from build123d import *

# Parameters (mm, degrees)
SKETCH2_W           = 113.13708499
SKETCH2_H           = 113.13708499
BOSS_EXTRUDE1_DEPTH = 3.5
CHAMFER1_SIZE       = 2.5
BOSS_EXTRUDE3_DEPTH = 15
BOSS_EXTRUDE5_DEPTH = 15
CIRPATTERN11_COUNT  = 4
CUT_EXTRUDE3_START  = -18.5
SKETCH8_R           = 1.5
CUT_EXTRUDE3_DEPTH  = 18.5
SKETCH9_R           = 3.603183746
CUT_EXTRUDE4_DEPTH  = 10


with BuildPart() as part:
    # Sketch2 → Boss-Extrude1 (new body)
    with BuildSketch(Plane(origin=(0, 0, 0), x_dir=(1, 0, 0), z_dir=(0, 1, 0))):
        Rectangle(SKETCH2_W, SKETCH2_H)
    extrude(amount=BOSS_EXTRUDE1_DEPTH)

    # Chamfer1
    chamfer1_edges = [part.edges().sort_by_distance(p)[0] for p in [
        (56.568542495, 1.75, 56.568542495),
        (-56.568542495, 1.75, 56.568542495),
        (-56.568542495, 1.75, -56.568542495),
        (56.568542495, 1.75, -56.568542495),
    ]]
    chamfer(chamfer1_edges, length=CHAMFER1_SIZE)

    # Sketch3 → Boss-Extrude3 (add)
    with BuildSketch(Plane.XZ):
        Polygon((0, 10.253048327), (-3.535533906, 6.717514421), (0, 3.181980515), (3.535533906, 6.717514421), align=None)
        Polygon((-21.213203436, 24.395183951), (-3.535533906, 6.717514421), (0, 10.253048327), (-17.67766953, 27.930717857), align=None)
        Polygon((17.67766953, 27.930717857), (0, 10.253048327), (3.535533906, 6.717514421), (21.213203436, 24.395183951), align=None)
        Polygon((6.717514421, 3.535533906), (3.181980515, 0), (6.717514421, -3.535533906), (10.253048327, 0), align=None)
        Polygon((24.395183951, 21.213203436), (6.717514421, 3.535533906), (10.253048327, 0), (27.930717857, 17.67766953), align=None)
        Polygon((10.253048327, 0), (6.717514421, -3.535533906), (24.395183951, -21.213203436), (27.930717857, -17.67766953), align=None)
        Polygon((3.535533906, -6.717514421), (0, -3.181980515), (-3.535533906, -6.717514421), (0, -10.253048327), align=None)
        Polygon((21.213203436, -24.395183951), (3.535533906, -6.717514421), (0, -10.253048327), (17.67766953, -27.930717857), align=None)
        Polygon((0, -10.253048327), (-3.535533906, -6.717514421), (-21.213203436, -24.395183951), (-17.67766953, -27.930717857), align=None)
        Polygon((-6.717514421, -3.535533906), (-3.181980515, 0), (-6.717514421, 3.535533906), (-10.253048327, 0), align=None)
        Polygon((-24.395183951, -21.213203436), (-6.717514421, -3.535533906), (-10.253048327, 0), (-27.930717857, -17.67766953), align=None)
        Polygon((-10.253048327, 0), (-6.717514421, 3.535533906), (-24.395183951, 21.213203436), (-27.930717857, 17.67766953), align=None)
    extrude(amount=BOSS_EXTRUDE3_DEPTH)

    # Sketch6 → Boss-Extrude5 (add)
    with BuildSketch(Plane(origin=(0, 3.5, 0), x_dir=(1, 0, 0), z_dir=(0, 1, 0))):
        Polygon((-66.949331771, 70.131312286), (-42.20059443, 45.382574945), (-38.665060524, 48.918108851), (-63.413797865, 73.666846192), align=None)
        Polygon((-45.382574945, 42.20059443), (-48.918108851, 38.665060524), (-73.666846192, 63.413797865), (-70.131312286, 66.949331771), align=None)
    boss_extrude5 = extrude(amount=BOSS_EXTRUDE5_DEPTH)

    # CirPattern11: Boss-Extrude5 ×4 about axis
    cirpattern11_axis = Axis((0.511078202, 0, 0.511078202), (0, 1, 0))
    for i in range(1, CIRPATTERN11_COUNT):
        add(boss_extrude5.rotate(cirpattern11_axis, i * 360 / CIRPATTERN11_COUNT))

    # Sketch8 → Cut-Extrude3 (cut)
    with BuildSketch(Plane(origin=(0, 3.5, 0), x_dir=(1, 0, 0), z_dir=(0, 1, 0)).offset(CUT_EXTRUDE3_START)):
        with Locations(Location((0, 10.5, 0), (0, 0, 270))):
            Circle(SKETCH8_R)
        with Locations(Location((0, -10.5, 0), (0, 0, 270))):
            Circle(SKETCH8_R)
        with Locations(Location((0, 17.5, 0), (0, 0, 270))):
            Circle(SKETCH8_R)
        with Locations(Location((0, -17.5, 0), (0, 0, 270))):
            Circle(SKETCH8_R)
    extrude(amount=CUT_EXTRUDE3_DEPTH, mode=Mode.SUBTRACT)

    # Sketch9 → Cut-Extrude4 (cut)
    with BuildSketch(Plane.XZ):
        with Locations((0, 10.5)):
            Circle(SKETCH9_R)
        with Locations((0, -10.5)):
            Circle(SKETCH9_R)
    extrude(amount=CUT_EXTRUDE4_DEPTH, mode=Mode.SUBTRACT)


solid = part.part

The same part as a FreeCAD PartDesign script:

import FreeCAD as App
import Part
import Sketcher
Q = App.Units.Quantity


def edges_at(feature, points):
    """Names of the edges that pass closest to the given points."""
    edges = feature.Shape.Edges
    near = lambda p: min(range(len(edges)), key=lambda i: edges[i].distToShape(Part.Vertex(*p))[0])
    return sorted({f"Edge{near(p) + 1}" for p in points})


def add_polygon(sketch, points):
    """Adds a closed chain of lines whose ends are joined by coincident constraints."""
    first, n = sketch.GeometryCount, len(points)
    for a, b in zip(points, points[1:] + points[:1]):
        sketch.addGeometry(Part.LineSegment(App.Vector(*a, 0), App.Vector(*b, 0)), False)
    for i in range(n):
        sketch.addConstraint(Sketcher.Constraint("Coincident", first + i, 2, first + (i + 1) % n, 1))

doc = App.newDocument("Part")
body = doc.addObject("PartDesign::Body", "Body")

# Sketch on XZ plane
sketch1 = doc.addObject("Sketcher::SketchObject", "Sketch")
body.addObject(sketch1)
sketch1.AttachmentSupport = (doc.XZ_Plane, [""])
sketch1.MapMode = "FlatFace"
add_polygon(sketch1, [(-56.568542, -56.568542), (-56.568542, 56.568542), (56.568542, 56.568542), (56.568542, -56.568542)])  # lines 0-3
sketch1.addConstraint([
    Sketcher.Constraint("Vertical", 0),
    Sketcher.Constraint("Horizontal", 1),
    Sketcher.Constraint("Vertical", 2),
    Sketcher.Constraint("Horizontal", 3),
    Sketcher.Constraint("Symmetric", 0, 2, 2, 2, -1, 1),
    Sketcher.Constraint("Equal", 3, 0),
    Sketcher.Constraint("DistanceX", 1, 1, 1, 2, 113.137085),
])
pad1 = doc.addObject("PartDesign::Pad", "Pad")
body.addObject(pad1)
pad1.Profile = sketch1
pad1.Length = 3.5
pad1.Reversed = True
doc.recompute()

chamfer = doc.addObject("PartDesign::Chamfer", "Chamfer")
body.addObject(chamfer)
chamfer.Base = (pad1, edges_at(pad1, [
    (56.569, 1.75, 56.569),
    (-56.569, 1.75, 56.569),
    (-56.569, 1.75, -56.569),
    (56.569, 1.75, -56.569),
]))
chamfer.Size = 2.5

# Sketch on XZ plane
sketch2 = doc.addObject("Sketcher::SketchObject", "Sketch001")
body.addObject(sketch2)
sketch2.AttachmentSupport = (doc.XZ_Plane, [""])
sketch2.MapMode = "FlatFace"
add_polygon(sketch2, [(0, 3.181981), (21.213203, 24.395184), (17.67767, 27.930718), (0, 10.253048), (-17.67767, 27.930718), (-21.213203, 24.395184)])  # lines 0-5
add_polygon(sketch2, [(3.181981, 0), (24.395184, -21.213203), (27.930718, -17.67767), (10.253048, 0), (27.930718, 17.67767), (24.395184, 21.213203)])  # lines 6-11
add_polygon(sketch2, [(0, -3.181981), (-21.213203, -24.395184), (-17.67767, -27.930718), (0, -10.253048), (17.67767, -27.930718), (21.213203, -24.395184)])  # lines 12-17
add_polygon(sketch2, [(-3.181981, 0), (-24.395184, 21.213203), (-27.930718, 17.67767), (-10.253048, 0), (-27.930718, -17.67767), (-24.395184, -21.213203)])  # lines 18-23
sketch2.addConstraint([
    Sketcher.Constraint("Symmetric", 0, 2, 12, 2, -1, 1),
    Sketcher.Constraint("Symmetric", 1, 2, 13, 2, -1, 1),
    Sketcher.Constraint("Symmetric", 2, 2, 14, 2, -1, 1),
    Sketcher.Constraint("Symmetric", 3, 2, 15, 2, -1, 1),
    Sketcher.Constraint("Symmetric", 4, 2, 16, 2, -1, 1),
    Sketcher.Constraint("Symmetric", 5, 2, 17, 2, -1, 1),
    Sketcher.Constraint("Symmetric", 6, 2, 18, 2, -1, 1),
    Sketcher.Constraint("Symmetric", 7, 2, 19, 2, -1, 1),
    Sketcher.Constraint("Symmetric", 8, 2, 20, 2, -1, 1),
    Sketcher.Constraint("Symmetric", 9, 2, 21, 2, -1, 1),
    Sketcher.Constraint("Symmetric", 10, 2, 22, 2, -1, 1),
    Sketcher.Constraint("Symmetric", 11, 2, 23, 2, -1, 1),
    Sketcher.Constraint("Symmetric", 1, 2, 3, 2, -2),
    Sketcher.Constraint("Symmetric", 0, 2, 4, 2, -2),
    Sketcher.Constraint("Symmetric", 10, 2, 18, 2, -2),
    Sketcher.Constraint("Symmetric", 9, 2, 19, 2, -2),
    Sketcher.Constraint("PointOnObject", 2, 2, -2),
    Sketcher.Constraint("PointOnObject", 5, 2, -2),
    Sketcher.Constraint("PointOnObject", 8, 2, -1),
    Sketcher.Constraint("PointOnObject", 11, 2, -1),
    Sketcher.Constraint("Perpendicular", 0, 1),
    Sketcher.Constraint("Perpendicular", 1, 2),
    Sketcher.Constraint("Perpendicular", 2, 3),
    Sketcher.Constraint("Parallel", 5, 6),
    Sketcher.Constraint("Perpendicular", 6, 7),
    Sketcher.Constraint("Perpendicular", 7, 8),
    Sketcher.Constraint("Equal", 5, 6),
    Sketcher.Constraint("Equal", 4, 7),
    Sketcher.Constraint("Distance", 0, 30.0),
    Sketcher.Constraint("Distance", 1, 5.0),
    Sketcher.Constraint("DistanceY", 13, 2, 5, 2, 31.112698),
    Sketcher.Constraint("DistanceX", -1, 1, 8, 2, 10.253048),
])
pad2 = doc.addObject("PartDesign::Pad", "Pad001")
body.addObject(pad2)
pad2.Profile = sketch2
pad2.Length = 15

# Sketch on XZ plane
sketch3 = doc.addObject("Sketcher::SketchObject", "Sketch002")
body.addObject(sketch3)
sketch3.AttachmentSupport = (doc.XZ_Plane, [""])
sketch3.MapMode = "FlatFace"
sketch3.AttachmentOffset = App.Placement(App.Vector(0, 0, -3.5), App.Rotation())
add_polygon(sketch3, [(-66.949332, -70.131312), (-42.200594, -45.382575), (-38.665061, -48.918109), (-63.413798, -73.666846)])  # lines 0-3
add_polygon(sketch3, [(-48.918109, -38.665061), (-45.382575, -42.200594), (-70.131312, -66.949332), (-73.666846, -63.413798)])  # lines 4-7
sketch3.addConstraint([
    Sketcher.Constraint("Perpendicular", 0, 1),
    Sketcher.Constraint("Perpendicular", 1, 2),
    Sketcher.Constraint("Perpendicular", 2, 3),
    Sketcher.Constraint("Parallel", 3, 4),
    Sketcher.Constraint("Perpendicular", 4, 5),
    Sketcher.Constraint("Perpendicular", 5, 6),
    Sketcher.Constraint("Perpendicular", 6, 7),
    Sketcher.Constraint("Equal", 3, 4),
    Sketcher.Constraint("Equal", 2, 5),
    Sketcher.Constraint("Angle", 0, Q("45 deg")),
    Sketcher.Constraint("Distance", 0, 35.0),
    Sketcher.Constraint("Distance", 1, 5.0),
    Sketcher.Constraint("DistanceX", 1, 2, -1, 1, 38.665061),
    Sketcher.Constraint("DistanceY", 1, 2, -1, 1, 48.918109),
    Sketcher.Constraint("DistanceY", 5, 2, -1, 1, 66.949332),
    Sketcher.Constraint("DistanceX", 7, 2, -1, 1, 48.918109),
])
pad3 = doc.addObject("PartDesign::Pad", "Pad002")
body.addObject(pad3)
pad3.Profile = sketch3
pad3.Length = 15
pad3.Reversed = True
doc.recompute()

datumline = doc.addObject("PartDesign::Line", "DatumLine")
body.addObject(datumline)
datumline.Placement = App.Placement(App.Vector(0.511078, 0, 0.511078), App.Rotation(App.Vector(0, 0, 1), App.Vector(0, 1, 0)))
polarpattern = doc.addObject("PartDesign::PolarPattern", "PolarPattern")
body.addObject(polarpattern)
polarpattern.Originals = [pad3]
polarpattern.Axis = (datumline, [""])
polarpattern.Angle = 360
polarpattern.Occurrences = 4
body.Tip = polarpattern

# Sketch on XZ plane
sketch4 = doc.addObject("Sketcher::SketchObject", "Sketch003")
body.addObject(sketch4)
sketch4.AttachmentSupport = (doc.XZ_Plane, [""])
sketch4.MapMode = "FlatFace"
sketch4.AttachmentOffset = App.Placement(App.Vector(0, 0, 15), App.Rotation())
sketch4.addGeometry([
    Part.Circle(App.Vector(0, -10.5, 0), App.Vector(0, 0, 1), 1.5),
    Part.Circle(App.Vector(0, 10.5, 0), App.Vector(0, 0, 1), 1.5),
    Part.Circle(App.Vector(0, -17.5, 0), App.Vector(0, 0, 1), 1.5),
    Part.Circle(App.Vector(0, 17.5, 0), App.Vector(0, 0, 1), 1.5),
], False)
sketch4.addConstraint([
    Sketcher.Constraint("Equal", 0, 1),
    Sketcher.Constraint("Equal", 1, 2),
    Sketcher.Constraint("Equal", 2, 3),
    Sketcher.Constraint("Symmetric", 0, 3, 1, 3, -1, 1),
    Sketcher.Constraint("Symmetric", 2, 3, 3, 3, -1, 1),
    Sketcher.Constraint("PointOnObject", 0, 3, -2),
    Sketcher.Constraint("PointOnObject", 2, 3, -2),
    Sketcher.Constraint("Diameter", 0, 3.0),
    Sketcher.Constraint("DistanceY", 0, 3, 1, 3, 21.0),
    Sketcher.Constraint("DistanceY", 2, 3, 0, 3, 7.0),
])
pocket1 = doc.addObject("PartDesign::Pocket", "Pocket")
body.addObject(pocket1)
pocket1.Profile = sketch4
pocket1.Length = 18.5

# Sketch on XZ plane
sketch5 = doc.addObject("Sketcher::SketchObject", "Sketch004")
body.addObject(sketch5)
sketch5.AttachmentSupport = (doc.XZ_Plane, [""])
sketch5.MapMode = "FlatFace"
sketch5.addGeometry([
    Part.Circle(App.Vector(0, 10.5, 0), App.Vector(0, 0, 1), 3.603184),
    Part.Circle(App.Vector(0, -10.5, 0), App.Vector(0, 0, 1), 3.603184),
], False)
sketch5.addConstraint([
    Sketcher.Constraint("Equal", 0, 1),
    Sketcher.Constraint("Symmetric", 0, 3, 1, 3, -1, 1),
    Sketcher.Constraint("PointOnObject", 0, 3, -2),
    Sketcher.Constraint("DistanceY", 1, 3, 0, 3, 21.0),
    Sketcher.Constraint("Diameter", 0, 7.206367),
])
pocket2 = doc.addObject("PartDesign::Pocket", "Pocket001")
body.addObject(pocket2)
pocket2.Profile = sketch5
pocket2.Length = 10
pocket2.Reversed = True

doc.recompute()
